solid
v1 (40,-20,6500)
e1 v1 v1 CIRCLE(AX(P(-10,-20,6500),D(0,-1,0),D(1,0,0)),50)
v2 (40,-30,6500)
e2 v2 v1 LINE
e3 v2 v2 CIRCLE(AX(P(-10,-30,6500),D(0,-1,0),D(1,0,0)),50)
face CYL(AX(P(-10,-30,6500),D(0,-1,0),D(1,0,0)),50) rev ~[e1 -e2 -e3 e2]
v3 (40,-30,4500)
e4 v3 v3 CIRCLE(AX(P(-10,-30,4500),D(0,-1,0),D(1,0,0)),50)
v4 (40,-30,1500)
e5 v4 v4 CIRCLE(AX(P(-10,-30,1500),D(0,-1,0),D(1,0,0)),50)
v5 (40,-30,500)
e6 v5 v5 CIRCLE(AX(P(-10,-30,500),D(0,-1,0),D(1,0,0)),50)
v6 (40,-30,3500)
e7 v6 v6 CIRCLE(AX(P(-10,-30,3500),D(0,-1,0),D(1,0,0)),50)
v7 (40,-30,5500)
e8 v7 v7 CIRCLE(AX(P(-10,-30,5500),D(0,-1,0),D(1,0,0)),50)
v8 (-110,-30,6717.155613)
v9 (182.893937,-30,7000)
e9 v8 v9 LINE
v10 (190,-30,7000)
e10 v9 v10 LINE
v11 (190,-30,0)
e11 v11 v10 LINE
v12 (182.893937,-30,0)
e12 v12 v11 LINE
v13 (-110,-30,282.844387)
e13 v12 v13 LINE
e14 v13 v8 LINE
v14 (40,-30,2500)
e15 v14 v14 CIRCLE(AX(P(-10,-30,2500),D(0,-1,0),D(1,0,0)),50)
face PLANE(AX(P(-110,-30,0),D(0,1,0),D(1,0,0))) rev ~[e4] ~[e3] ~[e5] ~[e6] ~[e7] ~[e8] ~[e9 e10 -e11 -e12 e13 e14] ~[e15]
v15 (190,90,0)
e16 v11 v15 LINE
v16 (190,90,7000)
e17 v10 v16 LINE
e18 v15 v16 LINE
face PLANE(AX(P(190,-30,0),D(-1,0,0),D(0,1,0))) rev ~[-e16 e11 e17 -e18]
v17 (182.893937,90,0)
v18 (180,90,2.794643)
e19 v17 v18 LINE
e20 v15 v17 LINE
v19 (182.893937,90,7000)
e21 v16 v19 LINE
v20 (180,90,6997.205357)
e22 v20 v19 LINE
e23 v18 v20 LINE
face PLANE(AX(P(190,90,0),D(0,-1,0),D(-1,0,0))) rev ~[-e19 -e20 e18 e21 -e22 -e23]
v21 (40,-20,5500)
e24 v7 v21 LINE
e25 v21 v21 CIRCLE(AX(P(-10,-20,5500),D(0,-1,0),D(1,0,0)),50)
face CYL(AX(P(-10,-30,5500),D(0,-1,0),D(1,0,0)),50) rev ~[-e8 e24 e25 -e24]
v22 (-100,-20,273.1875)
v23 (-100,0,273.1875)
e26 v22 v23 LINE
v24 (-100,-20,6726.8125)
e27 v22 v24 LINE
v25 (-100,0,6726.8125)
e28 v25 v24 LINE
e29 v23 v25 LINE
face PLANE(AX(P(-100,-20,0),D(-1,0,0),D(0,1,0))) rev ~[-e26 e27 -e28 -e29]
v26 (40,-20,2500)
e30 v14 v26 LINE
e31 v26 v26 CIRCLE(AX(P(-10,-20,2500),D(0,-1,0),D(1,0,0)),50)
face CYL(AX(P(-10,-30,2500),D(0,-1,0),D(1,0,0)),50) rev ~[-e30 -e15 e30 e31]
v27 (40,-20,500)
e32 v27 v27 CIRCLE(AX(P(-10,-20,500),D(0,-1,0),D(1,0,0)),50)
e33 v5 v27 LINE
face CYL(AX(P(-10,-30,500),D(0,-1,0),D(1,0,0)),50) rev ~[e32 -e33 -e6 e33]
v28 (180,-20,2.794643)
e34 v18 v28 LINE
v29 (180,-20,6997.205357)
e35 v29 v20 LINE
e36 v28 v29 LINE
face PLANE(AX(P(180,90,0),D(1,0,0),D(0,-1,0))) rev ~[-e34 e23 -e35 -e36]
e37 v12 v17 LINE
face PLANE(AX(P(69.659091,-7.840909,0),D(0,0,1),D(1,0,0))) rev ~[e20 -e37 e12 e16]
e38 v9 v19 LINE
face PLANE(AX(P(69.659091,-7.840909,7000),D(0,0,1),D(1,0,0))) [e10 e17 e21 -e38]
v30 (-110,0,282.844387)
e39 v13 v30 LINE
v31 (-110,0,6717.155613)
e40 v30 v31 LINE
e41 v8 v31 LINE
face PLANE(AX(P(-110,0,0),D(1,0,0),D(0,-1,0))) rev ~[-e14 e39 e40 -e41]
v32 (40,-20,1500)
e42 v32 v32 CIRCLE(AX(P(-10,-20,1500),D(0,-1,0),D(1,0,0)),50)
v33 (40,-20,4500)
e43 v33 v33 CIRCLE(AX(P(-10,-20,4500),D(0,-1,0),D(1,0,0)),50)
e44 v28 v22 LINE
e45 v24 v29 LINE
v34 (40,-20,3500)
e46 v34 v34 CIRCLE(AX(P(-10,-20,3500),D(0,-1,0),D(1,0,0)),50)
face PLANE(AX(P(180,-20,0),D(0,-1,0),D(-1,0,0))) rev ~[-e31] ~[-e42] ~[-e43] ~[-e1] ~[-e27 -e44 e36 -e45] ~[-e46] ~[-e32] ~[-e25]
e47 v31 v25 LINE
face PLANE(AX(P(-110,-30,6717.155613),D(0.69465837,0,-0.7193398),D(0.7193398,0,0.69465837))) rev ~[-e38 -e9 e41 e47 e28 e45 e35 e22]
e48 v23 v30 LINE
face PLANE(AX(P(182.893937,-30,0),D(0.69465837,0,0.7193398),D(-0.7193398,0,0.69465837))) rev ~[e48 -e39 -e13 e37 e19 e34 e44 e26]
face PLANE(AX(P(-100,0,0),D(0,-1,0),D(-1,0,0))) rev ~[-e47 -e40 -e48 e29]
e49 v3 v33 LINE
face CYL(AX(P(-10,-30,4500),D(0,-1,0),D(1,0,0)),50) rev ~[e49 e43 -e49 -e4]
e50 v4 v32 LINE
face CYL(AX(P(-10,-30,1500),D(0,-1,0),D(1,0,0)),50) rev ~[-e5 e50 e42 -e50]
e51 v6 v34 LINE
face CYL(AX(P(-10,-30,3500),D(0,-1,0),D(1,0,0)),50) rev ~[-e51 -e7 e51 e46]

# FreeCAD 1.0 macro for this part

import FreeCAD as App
import Part
import Sketcher
Q = App.Units.Quantity


def add_polygon(sketch, points):
    """Adds a closed chain of lines whose ends are joined by coincident constraints."""
    first, n = sketch.GeometryCount, len(points)
    for a, b in zip(points, points[1:] + points[:1]):
        sketch.addGeometry(Part.LineSegment(App.Vector(*a, 0), App.Vector(*b, 0)), False)
    for i in range(n):
        sketch.addConstraint(Sketcher.Constraint("Coincident", first + i, 2, first + (i + 1) % n, 1))

doc = App.newDocument("Part")
body = doc.addObject("PartDesign::Body", "Body")

# Sketch on XY plane
sketch1 = body.newObject("Sketcher::SketchObject", "Sketch")
sketch1.AttachmentSupport = (doc.getObject("XY_Plane"), [""])
sketch1.MapMode = "FlatFace"
add_polygon(sketch1, [(-100, 0), (-110, 0), (-110, -30), (190, -30), (190, 90), (180, 90), (180, -20), (-100, -20)])  # lines 0-7
sketch1.addConstraint(Sketcher.Constraint("Horizontal", 0))
sketch1.addConstraint(Sketcher.Constraint("Vertical", 1))
sketch1.addConstraint(Sketcher.Constraint("Horizontal", 2))
sketch1.addConstraint(Sketcher.Constraint("Vertical", 3))
sketch1.addConstraint(Sketcher.Constraint("Horizontal", 4))
sketch1.addConstraint(Sketcher.Constraint("Vertical", 5))
sketch1.addConstraint(Sketcher.Constraint("Horizontal", 6))
sketch1.addConstraint(Sketcher.Constraint("Vertical", 7))
sketch1.addConstraint(Sketcher.Constraint("PointOnObject", 0, 2, -1))
sketch1.addConstraint(Sketcher.Constraint("Equal", 0, 4))
sketch1.addConstraint(Sketcher.Constraint("DistanceX", 0, 2, 0, 1, 10.0))
sketch1.addConstraint(Sketcher.Constraint("DistanceX", 2, 1, 2, 2, 300.0))
sketch1.addConstraint(Sketcher.Constraint("DistanceY", 1, 2, 1, 1, 30.0))
sketch1.addConstraint(Sketcher.Constraint("DistanceY", 3, 1, 3, 2, 120.0))
sketch1.addConstraint(Sketcher.Constraint("DistanceY", 5, 2, 5, 1, 110.0))
sketch1.addConstraint(Sketcher.Constraint("DistanceX", 0, 2, -1, 1, 110.0))
pad1 = body.newObject("PartDesign::Pad", "Pad")
pad1.Profile = sketch1
pad1.Length = 7000

# Sketch on XZ plane
sketch2 = body.newObject("Sketcher::SketchObject", "Sketch001")
sketch2.AttachmentSupport = (doc.getObject("XZ_Plane"), [""])
sketch2.MapMode = "FlatFace"
sketch2.AttachmentOffset = App.Placement(App.Vector(0, 0, 30), App.Rotation())
add_polygon(sketch2, [(182.893937, 0), (-110, 282.844387), (-110, 0)])  # lines 0-2
add_polygon(sketch2, [(-110, 7000), (-110, 6717.155613), (182.893937, 7000)])  # lines 3-5
sketch2.addConstraint(Sketcher.Constraint("Vertical", 1))
sketch2.addConstraint(Sketcher.Constraint("Horizontal", 2))
sketch2.addConstraint(Sketcher.Constraint("Vertical", 3))
sketch2.addConstraint(Sketcher.Constraint("Horizontal", 5))
sketch2.addConstraint(Sketcher.Constraint("PointOnObject", 1, 2, -1))
sketch2.addConstraint(Sketcher.Constraint("Vertical", 1, 2, 3, 2))
sketch2.addConstraint(Sketcher.Constraint("Vertical", 2, 2, 4, 2))
sketch2.addConstraint(Sketcher.Constraint("Equal", 1, 3))
sketch2.addConstraint(Sketcher.Constraint("Angle", 0, Q("136 deg")))
sketch2.addConstraint(Sketcher.Constraint("DistanceX", 0, 2, -1, 1, 110.0))
sketch2.addConstraint(Sketcher.Constraint("DistanceY", -1, 1, 4, 2, 7000.0))
sketch2.addConstraint(Sketcher.Constraint("DistanceX", 2, 1, 2, 2, 292.893937))
pocket1 = body.newObject("PartDesign::Pocket", "Pocket")
pocket1.Profile = sketch2
pocket1.Length = 200

# Sketch on XZ plane
sketch3 = body.newObject("Sketcher::SketchObject", "Sketch002")
sketch3.AttachmentSupport = (doc.getObject("XZ_Plane"), [""])
sketch3.MapMode = "FlatFace"
sketch3.AttachmentOffset = App.Placement(App.Vector(0, 0, 30), App.Rotation())
sketch3.addGeometry(Part.Circle(App.Vector(-10, 6500, 0), App.Vector(0, 0, 1), 50), False)
sketch3.addGeometry(Part.Circle(App.Vector(-10, 5500, 0), App.Vector(0, 0, 1), 50), False)
sketch3.addGeometry(Part.Circle(App.Vector(-10, 4500, 0), App.Vector(0, 0, 1), 50), False)
sketch3.addGeometry(Part.Circle(App.Vector(-10, 3500, 0), App.Vector(0, 0, 1), 50), False)
sketch3.addGeometry(Part.Circle(App.Vector(-10, 2500, 0), App.Vector(0, 0, 1), 50), False)
sketch3.addGeometry(Part.Circle(App.Vector(-10, 1500, 0), App.Vector(0, 0, 1), 50), False)
sketch3.addGeometry(Part.Circle(App.Vector(-10, 500, 0), App.Vector(0, 0, 1), 50), False)
sketch3.addConstraint(Sketcher.Constraint("Equal", 0, 1))
sketch3.addConstraint(Sketcher.Constraint("Equal", 1, 2))
sketch3.addConstraint(Sketcher.Constraint("Equal", 2, 3))
sketch3.addConstraint(Sketcher.Constraint("Equal", 3, 4))
sketch3.addConstraint(Sketcher.Constraint("Equal", 4, 5))
sketch3.addConstraint(Sketcher.Constraint("Equal", 5, 6))
sketch3.addConstraint(Sketcher.Constraint("Vertical", 0, 3, 1, 3))
sketch3.addConstraint(Sketcher.Constraint("Vertical", 1, 3, 2, 3))
sketch3.addConstraint(Sketcher.Constraint("Vertical", 2, 3, 3, 3))
sketch3.addConstraint(Sketcher.Constraint("Vertical", 3, 3, 4, 3))
sketch3.addConstraint(Sketcher.Constraint("Vertical", 4, 3, 5, 3))
sketch3.addConstraint(Sketcher.Constraint("Vertical", 5, 3, 6, 3))
sketch3.addConstraint(Sketcher.Constraint("Diameter", 0, 100.0))
sketch3.addConstraint(Sketcher.Constraint("DistanceX", 0, 3, -1, 1, 10.0))
sketch3.addConstraint(Sketcher.Constraint("DistanceY", -1, 1, 0, 3, 6500.0))
sketch3.addConstraint(Sketcher.Constraint("DistanceY", -1, 1, 1, 3, 5500.0))
sketch3.addConstraint(Sketcher.Constraint("DistanceY", -1, 1, 2, 3, 4500.0))
sketch3.addConstraint(Sketcher.Constraint("DistanceY", -1, 1, 3, 3, 3500.0))
sketch3.addConstraint(Sketcher.Constraint("DistanceY", -1, 1, 4, 3, 2500.0))
sketch3.addConstraint(Sketcher.Constraint("DistanceY", -1, 1, 5, 3, 1500.0))
sketch3.addConstraint(Sketcher.Constraint("DistanceY", -1, 1, 6, 3, 500.0))
pocket2 = body.newObject("PartDesign::Pocket", "Pocket001")
pocket2.Profile = sketch3
pocket2.Type = "ThroughAll"

doc.recompute()
